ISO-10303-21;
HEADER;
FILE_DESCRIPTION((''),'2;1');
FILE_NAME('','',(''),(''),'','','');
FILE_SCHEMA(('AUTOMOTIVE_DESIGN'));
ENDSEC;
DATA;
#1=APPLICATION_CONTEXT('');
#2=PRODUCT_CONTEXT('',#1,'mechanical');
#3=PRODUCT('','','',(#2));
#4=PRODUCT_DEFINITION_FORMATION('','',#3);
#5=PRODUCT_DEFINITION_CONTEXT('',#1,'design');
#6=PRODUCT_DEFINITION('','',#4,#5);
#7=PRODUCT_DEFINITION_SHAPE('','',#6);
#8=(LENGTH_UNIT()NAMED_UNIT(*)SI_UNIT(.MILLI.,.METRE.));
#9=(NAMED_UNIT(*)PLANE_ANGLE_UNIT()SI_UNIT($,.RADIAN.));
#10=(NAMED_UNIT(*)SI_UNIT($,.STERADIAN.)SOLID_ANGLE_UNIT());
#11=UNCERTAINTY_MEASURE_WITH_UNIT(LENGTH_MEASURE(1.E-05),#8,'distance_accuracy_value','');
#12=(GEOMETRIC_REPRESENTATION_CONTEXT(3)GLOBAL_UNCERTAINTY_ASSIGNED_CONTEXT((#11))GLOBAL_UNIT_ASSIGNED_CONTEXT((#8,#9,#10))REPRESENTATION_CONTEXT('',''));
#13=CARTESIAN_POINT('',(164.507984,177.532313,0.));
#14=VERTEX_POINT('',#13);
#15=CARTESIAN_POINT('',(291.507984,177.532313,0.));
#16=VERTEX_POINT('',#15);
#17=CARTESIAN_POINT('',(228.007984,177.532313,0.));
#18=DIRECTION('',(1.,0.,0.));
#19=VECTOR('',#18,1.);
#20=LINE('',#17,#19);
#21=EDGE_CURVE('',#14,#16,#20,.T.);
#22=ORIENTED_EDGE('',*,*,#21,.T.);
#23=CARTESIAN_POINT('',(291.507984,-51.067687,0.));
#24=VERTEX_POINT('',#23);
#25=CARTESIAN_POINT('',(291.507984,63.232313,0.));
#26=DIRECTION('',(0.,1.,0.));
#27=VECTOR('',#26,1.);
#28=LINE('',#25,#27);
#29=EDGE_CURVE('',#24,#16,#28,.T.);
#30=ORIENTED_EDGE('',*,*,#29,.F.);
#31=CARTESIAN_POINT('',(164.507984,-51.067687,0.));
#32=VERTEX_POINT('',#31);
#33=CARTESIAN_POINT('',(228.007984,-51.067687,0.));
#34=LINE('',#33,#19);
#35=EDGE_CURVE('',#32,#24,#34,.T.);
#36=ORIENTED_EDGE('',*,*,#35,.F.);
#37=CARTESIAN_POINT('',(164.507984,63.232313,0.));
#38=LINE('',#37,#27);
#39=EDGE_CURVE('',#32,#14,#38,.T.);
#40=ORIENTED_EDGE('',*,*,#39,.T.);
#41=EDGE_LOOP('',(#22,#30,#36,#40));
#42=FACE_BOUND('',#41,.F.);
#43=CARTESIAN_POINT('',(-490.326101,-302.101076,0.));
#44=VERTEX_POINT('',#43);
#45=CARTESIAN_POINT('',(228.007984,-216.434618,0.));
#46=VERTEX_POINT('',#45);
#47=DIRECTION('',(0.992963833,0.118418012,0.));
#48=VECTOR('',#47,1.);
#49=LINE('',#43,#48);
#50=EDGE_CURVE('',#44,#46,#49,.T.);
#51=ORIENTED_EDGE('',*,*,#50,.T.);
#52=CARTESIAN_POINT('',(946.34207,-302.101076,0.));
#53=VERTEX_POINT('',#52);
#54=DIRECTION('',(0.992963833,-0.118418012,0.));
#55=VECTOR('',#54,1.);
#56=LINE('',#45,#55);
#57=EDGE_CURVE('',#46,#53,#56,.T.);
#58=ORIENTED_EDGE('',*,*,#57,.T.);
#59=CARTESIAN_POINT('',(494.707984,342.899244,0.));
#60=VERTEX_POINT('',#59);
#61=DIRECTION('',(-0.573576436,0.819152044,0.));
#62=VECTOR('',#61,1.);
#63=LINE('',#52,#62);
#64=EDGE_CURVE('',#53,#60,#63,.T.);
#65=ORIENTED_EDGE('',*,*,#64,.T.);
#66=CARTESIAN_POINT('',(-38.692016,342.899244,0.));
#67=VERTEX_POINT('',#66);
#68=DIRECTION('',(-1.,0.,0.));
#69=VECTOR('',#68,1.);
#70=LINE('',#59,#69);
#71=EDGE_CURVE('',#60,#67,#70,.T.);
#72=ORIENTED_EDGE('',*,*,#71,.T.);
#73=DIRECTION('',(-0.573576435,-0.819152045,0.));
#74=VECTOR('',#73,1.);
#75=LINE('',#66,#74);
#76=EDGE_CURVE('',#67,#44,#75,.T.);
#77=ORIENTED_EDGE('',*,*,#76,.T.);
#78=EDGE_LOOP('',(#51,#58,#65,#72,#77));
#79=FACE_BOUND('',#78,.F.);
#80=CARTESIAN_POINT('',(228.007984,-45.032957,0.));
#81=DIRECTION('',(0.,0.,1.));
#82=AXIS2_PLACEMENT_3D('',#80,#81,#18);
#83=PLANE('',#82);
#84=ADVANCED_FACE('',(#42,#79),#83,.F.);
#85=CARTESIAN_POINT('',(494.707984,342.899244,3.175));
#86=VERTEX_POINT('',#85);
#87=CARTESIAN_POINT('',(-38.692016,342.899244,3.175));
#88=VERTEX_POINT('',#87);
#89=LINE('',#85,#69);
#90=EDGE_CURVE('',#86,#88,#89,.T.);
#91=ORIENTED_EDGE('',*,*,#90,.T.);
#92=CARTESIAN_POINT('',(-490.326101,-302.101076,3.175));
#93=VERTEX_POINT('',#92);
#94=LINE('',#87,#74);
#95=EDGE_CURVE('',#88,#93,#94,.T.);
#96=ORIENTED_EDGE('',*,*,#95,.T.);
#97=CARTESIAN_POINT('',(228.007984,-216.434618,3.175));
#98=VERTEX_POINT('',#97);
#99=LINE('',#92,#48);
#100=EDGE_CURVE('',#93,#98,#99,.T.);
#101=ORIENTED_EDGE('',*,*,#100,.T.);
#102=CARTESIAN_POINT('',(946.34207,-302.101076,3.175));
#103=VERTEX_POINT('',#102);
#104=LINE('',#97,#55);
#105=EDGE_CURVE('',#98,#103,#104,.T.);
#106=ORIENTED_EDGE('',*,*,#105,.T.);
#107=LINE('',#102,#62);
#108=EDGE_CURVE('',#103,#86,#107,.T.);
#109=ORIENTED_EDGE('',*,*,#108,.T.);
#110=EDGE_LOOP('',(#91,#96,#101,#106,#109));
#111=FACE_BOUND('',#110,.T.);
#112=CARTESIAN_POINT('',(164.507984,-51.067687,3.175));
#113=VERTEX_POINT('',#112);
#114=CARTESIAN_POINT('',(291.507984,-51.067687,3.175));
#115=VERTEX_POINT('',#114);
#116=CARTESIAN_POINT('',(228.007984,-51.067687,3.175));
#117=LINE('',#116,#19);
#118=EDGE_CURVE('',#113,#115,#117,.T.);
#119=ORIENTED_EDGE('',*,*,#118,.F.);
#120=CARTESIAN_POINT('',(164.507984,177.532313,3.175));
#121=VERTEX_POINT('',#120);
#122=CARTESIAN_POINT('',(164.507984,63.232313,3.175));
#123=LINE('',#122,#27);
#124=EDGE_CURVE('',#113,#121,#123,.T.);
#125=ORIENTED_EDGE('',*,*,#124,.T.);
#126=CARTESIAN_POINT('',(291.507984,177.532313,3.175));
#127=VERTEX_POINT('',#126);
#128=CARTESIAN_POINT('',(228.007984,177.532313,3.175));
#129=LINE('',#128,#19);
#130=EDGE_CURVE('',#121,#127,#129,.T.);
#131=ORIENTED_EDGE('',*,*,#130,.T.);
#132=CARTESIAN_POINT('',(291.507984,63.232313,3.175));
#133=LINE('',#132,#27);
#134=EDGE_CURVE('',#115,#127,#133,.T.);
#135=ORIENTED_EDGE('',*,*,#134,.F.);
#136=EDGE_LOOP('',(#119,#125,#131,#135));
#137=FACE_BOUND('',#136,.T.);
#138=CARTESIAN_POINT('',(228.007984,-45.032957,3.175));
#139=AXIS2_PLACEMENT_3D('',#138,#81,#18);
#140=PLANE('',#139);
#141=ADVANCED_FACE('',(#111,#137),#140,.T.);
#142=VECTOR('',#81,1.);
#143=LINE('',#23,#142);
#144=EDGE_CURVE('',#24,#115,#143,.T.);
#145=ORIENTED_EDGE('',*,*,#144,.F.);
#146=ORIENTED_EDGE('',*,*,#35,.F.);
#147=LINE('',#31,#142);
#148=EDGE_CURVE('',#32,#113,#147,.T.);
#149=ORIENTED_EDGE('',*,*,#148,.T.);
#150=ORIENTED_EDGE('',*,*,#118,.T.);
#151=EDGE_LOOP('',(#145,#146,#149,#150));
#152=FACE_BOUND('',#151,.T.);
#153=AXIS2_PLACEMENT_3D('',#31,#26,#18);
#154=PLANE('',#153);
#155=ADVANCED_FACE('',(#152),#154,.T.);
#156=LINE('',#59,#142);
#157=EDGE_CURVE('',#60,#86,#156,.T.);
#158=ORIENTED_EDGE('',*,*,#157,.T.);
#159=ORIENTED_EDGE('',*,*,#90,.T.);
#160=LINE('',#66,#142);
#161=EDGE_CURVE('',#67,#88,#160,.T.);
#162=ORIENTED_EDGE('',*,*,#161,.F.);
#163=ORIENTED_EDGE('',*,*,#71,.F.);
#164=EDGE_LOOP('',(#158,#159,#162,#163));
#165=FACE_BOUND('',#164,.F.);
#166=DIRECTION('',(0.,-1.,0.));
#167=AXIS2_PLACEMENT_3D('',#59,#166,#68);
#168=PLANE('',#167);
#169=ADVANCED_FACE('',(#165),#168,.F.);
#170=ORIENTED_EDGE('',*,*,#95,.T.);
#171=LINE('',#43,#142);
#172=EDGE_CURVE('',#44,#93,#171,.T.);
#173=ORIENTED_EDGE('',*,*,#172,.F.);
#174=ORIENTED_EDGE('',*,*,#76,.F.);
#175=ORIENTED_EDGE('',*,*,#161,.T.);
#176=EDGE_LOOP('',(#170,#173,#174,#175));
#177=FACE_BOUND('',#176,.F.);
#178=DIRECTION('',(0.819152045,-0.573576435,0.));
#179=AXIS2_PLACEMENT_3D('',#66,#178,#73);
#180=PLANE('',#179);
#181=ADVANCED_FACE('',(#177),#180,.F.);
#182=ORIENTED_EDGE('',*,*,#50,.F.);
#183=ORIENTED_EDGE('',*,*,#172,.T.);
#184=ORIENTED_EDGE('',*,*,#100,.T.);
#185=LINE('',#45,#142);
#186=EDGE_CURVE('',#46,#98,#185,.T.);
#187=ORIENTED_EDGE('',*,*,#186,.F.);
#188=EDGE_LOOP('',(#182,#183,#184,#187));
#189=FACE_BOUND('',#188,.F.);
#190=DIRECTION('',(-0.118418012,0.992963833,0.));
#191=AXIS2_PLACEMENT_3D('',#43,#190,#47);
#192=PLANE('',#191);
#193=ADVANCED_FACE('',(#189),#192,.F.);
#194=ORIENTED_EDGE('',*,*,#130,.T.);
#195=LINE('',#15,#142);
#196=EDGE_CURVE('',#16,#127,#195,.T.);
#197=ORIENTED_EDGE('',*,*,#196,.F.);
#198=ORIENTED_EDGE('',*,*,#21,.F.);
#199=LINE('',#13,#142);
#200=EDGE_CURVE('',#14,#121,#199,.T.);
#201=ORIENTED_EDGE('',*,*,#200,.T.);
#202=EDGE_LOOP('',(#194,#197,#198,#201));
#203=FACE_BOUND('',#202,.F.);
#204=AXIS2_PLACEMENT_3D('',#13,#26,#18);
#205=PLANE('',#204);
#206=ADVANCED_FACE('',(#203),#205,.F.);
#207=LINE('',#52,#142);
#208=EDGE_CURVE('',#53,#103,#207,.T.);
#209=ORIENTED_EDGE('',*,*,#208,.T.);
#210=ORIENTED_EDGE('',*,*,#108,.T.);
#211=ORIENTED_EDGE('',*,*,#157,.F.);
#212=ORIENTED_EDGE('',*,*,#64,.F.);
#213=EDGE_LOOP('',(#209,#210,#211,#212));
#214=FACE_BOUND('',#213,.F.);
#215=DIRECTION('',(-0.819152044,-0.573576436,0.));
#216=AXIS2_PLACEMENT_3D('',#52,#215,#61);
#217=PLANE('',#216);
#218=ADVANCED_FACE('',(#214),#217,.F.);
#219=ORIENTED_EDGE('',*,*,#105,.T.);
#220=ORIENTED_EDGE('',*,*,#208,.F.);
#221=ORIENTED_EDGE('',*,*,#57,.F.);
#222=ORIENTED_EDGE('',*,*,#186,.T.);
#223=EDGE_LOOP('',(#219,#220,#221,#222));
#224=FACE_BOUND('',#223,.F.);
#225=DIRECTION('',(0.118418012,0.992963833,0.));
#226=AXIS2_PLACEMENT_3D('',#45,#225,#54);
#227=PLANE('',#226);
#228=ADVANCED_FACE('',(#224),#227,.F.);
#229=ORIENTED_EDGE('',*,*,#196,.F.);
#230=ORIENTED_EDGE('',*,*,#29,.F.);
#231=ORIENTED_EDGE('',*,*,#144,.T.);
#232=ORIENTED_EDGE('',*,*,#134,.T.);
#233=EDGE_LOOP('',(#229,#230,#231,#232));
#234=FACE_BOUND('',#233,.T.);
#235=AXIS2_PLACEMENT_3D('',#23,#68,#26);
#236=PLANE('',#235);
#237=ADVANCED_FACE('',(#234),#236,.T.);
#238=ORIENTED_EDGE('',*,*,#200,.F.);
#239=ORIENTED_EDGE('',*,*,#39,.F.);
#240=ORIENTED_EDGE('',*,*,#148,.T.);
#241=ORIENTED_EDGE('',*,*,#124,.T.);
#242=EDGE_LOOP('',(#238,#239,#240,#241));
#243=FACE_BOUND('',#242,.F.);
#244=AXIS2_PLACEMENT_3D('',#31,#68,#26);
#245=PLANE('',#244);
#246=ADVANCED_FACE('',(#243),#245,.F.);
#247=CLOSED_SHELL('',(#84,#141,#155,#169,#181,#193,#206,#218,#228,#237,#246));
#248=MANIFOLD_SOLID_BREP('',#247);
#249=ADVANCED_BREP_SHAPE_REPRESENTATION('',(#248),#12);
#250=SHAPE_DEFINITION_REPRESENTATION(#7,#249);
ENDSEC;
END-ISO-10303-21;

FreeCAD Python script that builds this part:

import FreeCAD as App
import Part
import Sketcher
from FreeCAD import Vector
Q = App.Units.Quantity


def add_polygon(sketch, points):
    """Adds a closed chain of lines whose ends are joined by coincident constraints."""
    first, n = sketch.GeometryCount, len(points)
    for a, b in zip(points, points[1:] + points[:1]):
        sketch.addGeometry(Part.LineSegment(App.Vector(*a, 0), App.Vector(*b, 0)), False)
    for i in range(n):
        sketch.addConstraint(Sketcher.Constraint("Coincident", first + i, 2, first + (i + 1) % n, 1))

doc = App.newDocument("Part")
body = doc.addObject("PartDesign::Body", "Body")

# Sketch on XY plane
sketch1 = body.newObject("Sketcher::SketchObject", "Sketch")
sketch1.AttachmentSupport = (doc.getObject("XY_Plane"), [""])
sketch1.MapMode = "FlatFace"
add_polygon(sketch1, [(494.707984, 342.899244), (-38.692016, 342.899244), (-490.326101, -302.101076), (228.007984, -216.434618), (946.34207, -302.101076)])  # lines 0-4
add_polygon(sketch1, [(291.507984, -51.067687), (164.507984, -51.067687), (164.507984, 177.532313), (291.507984, 177.532313)])  # lines 5-8
sketch1.addConstraint(Sketcher.Constraint("Horizontal", 0))
sketch1.addConstraint(Sketcher.Constraint("Horizontal", 5))
sketch1.addConstraint(Sketcher.Constraint("Vertical", 6))
sketch1.addConstraint(Sketcher.Constraint("Horizontal", 7))
sketch1.addConstraint(Sketcher.Constraint("Vertical", 8))
sketch1.addConstraint(Sketcher.Constraint("Horizontal", 1, 2, 3, 2))
sketch1.addConstraint(Sketcher.Constraint("Equal", 2, 3))
sketch1.addConstraint(Sketcher.Constraint("Equal", 1, 4))
sketch1.addConstraint(Sketcher.Constraint("DistanceX", 0, 2, 0, 1, Q("21 in")))
sketch1.addConstraint(Sketcher.Constraint("DistanceX", 5, 2, 5, 1, Q("5 in")))
sketch1.addConstraint(Sketcher.Constraint("DistanceY", 6, 1, 6, 2, Q("9 in")))
sketch1.addConstraint(Sketcher.Constraint("Distance", 1, Q("31 in")))
sketch1.addConstraint(Sketcher.Constraint("Angle", 1, Q("-125 deg")))
sketch1.addConstraint(Sketcher.Constraint("DistanceX", 0, 2, 5, 2, Q("8 in")))
sketch1.addConstraint(Sketcher.Constraint("DistanceX", 1, 2, -1, 1, 490.326101))
sketch1.addConstraint(Sketcher.Constraint("Distance", 2, 723.424218))
sketch1.addConstraint(Sketcher.Constraint("DistanceY", 2, 2, -1, 1, 216.434618))
sketch1.addConstraint(Sketcher.Constraint("DistanceY", 2, 2, 5, 2, 165.366931))
pad1 = body.newObject("PartDesign::Pad", "Pad")
pad1.Profile = sketch1
pad1.Length = Q("0.125 in")

doc.recompute()
